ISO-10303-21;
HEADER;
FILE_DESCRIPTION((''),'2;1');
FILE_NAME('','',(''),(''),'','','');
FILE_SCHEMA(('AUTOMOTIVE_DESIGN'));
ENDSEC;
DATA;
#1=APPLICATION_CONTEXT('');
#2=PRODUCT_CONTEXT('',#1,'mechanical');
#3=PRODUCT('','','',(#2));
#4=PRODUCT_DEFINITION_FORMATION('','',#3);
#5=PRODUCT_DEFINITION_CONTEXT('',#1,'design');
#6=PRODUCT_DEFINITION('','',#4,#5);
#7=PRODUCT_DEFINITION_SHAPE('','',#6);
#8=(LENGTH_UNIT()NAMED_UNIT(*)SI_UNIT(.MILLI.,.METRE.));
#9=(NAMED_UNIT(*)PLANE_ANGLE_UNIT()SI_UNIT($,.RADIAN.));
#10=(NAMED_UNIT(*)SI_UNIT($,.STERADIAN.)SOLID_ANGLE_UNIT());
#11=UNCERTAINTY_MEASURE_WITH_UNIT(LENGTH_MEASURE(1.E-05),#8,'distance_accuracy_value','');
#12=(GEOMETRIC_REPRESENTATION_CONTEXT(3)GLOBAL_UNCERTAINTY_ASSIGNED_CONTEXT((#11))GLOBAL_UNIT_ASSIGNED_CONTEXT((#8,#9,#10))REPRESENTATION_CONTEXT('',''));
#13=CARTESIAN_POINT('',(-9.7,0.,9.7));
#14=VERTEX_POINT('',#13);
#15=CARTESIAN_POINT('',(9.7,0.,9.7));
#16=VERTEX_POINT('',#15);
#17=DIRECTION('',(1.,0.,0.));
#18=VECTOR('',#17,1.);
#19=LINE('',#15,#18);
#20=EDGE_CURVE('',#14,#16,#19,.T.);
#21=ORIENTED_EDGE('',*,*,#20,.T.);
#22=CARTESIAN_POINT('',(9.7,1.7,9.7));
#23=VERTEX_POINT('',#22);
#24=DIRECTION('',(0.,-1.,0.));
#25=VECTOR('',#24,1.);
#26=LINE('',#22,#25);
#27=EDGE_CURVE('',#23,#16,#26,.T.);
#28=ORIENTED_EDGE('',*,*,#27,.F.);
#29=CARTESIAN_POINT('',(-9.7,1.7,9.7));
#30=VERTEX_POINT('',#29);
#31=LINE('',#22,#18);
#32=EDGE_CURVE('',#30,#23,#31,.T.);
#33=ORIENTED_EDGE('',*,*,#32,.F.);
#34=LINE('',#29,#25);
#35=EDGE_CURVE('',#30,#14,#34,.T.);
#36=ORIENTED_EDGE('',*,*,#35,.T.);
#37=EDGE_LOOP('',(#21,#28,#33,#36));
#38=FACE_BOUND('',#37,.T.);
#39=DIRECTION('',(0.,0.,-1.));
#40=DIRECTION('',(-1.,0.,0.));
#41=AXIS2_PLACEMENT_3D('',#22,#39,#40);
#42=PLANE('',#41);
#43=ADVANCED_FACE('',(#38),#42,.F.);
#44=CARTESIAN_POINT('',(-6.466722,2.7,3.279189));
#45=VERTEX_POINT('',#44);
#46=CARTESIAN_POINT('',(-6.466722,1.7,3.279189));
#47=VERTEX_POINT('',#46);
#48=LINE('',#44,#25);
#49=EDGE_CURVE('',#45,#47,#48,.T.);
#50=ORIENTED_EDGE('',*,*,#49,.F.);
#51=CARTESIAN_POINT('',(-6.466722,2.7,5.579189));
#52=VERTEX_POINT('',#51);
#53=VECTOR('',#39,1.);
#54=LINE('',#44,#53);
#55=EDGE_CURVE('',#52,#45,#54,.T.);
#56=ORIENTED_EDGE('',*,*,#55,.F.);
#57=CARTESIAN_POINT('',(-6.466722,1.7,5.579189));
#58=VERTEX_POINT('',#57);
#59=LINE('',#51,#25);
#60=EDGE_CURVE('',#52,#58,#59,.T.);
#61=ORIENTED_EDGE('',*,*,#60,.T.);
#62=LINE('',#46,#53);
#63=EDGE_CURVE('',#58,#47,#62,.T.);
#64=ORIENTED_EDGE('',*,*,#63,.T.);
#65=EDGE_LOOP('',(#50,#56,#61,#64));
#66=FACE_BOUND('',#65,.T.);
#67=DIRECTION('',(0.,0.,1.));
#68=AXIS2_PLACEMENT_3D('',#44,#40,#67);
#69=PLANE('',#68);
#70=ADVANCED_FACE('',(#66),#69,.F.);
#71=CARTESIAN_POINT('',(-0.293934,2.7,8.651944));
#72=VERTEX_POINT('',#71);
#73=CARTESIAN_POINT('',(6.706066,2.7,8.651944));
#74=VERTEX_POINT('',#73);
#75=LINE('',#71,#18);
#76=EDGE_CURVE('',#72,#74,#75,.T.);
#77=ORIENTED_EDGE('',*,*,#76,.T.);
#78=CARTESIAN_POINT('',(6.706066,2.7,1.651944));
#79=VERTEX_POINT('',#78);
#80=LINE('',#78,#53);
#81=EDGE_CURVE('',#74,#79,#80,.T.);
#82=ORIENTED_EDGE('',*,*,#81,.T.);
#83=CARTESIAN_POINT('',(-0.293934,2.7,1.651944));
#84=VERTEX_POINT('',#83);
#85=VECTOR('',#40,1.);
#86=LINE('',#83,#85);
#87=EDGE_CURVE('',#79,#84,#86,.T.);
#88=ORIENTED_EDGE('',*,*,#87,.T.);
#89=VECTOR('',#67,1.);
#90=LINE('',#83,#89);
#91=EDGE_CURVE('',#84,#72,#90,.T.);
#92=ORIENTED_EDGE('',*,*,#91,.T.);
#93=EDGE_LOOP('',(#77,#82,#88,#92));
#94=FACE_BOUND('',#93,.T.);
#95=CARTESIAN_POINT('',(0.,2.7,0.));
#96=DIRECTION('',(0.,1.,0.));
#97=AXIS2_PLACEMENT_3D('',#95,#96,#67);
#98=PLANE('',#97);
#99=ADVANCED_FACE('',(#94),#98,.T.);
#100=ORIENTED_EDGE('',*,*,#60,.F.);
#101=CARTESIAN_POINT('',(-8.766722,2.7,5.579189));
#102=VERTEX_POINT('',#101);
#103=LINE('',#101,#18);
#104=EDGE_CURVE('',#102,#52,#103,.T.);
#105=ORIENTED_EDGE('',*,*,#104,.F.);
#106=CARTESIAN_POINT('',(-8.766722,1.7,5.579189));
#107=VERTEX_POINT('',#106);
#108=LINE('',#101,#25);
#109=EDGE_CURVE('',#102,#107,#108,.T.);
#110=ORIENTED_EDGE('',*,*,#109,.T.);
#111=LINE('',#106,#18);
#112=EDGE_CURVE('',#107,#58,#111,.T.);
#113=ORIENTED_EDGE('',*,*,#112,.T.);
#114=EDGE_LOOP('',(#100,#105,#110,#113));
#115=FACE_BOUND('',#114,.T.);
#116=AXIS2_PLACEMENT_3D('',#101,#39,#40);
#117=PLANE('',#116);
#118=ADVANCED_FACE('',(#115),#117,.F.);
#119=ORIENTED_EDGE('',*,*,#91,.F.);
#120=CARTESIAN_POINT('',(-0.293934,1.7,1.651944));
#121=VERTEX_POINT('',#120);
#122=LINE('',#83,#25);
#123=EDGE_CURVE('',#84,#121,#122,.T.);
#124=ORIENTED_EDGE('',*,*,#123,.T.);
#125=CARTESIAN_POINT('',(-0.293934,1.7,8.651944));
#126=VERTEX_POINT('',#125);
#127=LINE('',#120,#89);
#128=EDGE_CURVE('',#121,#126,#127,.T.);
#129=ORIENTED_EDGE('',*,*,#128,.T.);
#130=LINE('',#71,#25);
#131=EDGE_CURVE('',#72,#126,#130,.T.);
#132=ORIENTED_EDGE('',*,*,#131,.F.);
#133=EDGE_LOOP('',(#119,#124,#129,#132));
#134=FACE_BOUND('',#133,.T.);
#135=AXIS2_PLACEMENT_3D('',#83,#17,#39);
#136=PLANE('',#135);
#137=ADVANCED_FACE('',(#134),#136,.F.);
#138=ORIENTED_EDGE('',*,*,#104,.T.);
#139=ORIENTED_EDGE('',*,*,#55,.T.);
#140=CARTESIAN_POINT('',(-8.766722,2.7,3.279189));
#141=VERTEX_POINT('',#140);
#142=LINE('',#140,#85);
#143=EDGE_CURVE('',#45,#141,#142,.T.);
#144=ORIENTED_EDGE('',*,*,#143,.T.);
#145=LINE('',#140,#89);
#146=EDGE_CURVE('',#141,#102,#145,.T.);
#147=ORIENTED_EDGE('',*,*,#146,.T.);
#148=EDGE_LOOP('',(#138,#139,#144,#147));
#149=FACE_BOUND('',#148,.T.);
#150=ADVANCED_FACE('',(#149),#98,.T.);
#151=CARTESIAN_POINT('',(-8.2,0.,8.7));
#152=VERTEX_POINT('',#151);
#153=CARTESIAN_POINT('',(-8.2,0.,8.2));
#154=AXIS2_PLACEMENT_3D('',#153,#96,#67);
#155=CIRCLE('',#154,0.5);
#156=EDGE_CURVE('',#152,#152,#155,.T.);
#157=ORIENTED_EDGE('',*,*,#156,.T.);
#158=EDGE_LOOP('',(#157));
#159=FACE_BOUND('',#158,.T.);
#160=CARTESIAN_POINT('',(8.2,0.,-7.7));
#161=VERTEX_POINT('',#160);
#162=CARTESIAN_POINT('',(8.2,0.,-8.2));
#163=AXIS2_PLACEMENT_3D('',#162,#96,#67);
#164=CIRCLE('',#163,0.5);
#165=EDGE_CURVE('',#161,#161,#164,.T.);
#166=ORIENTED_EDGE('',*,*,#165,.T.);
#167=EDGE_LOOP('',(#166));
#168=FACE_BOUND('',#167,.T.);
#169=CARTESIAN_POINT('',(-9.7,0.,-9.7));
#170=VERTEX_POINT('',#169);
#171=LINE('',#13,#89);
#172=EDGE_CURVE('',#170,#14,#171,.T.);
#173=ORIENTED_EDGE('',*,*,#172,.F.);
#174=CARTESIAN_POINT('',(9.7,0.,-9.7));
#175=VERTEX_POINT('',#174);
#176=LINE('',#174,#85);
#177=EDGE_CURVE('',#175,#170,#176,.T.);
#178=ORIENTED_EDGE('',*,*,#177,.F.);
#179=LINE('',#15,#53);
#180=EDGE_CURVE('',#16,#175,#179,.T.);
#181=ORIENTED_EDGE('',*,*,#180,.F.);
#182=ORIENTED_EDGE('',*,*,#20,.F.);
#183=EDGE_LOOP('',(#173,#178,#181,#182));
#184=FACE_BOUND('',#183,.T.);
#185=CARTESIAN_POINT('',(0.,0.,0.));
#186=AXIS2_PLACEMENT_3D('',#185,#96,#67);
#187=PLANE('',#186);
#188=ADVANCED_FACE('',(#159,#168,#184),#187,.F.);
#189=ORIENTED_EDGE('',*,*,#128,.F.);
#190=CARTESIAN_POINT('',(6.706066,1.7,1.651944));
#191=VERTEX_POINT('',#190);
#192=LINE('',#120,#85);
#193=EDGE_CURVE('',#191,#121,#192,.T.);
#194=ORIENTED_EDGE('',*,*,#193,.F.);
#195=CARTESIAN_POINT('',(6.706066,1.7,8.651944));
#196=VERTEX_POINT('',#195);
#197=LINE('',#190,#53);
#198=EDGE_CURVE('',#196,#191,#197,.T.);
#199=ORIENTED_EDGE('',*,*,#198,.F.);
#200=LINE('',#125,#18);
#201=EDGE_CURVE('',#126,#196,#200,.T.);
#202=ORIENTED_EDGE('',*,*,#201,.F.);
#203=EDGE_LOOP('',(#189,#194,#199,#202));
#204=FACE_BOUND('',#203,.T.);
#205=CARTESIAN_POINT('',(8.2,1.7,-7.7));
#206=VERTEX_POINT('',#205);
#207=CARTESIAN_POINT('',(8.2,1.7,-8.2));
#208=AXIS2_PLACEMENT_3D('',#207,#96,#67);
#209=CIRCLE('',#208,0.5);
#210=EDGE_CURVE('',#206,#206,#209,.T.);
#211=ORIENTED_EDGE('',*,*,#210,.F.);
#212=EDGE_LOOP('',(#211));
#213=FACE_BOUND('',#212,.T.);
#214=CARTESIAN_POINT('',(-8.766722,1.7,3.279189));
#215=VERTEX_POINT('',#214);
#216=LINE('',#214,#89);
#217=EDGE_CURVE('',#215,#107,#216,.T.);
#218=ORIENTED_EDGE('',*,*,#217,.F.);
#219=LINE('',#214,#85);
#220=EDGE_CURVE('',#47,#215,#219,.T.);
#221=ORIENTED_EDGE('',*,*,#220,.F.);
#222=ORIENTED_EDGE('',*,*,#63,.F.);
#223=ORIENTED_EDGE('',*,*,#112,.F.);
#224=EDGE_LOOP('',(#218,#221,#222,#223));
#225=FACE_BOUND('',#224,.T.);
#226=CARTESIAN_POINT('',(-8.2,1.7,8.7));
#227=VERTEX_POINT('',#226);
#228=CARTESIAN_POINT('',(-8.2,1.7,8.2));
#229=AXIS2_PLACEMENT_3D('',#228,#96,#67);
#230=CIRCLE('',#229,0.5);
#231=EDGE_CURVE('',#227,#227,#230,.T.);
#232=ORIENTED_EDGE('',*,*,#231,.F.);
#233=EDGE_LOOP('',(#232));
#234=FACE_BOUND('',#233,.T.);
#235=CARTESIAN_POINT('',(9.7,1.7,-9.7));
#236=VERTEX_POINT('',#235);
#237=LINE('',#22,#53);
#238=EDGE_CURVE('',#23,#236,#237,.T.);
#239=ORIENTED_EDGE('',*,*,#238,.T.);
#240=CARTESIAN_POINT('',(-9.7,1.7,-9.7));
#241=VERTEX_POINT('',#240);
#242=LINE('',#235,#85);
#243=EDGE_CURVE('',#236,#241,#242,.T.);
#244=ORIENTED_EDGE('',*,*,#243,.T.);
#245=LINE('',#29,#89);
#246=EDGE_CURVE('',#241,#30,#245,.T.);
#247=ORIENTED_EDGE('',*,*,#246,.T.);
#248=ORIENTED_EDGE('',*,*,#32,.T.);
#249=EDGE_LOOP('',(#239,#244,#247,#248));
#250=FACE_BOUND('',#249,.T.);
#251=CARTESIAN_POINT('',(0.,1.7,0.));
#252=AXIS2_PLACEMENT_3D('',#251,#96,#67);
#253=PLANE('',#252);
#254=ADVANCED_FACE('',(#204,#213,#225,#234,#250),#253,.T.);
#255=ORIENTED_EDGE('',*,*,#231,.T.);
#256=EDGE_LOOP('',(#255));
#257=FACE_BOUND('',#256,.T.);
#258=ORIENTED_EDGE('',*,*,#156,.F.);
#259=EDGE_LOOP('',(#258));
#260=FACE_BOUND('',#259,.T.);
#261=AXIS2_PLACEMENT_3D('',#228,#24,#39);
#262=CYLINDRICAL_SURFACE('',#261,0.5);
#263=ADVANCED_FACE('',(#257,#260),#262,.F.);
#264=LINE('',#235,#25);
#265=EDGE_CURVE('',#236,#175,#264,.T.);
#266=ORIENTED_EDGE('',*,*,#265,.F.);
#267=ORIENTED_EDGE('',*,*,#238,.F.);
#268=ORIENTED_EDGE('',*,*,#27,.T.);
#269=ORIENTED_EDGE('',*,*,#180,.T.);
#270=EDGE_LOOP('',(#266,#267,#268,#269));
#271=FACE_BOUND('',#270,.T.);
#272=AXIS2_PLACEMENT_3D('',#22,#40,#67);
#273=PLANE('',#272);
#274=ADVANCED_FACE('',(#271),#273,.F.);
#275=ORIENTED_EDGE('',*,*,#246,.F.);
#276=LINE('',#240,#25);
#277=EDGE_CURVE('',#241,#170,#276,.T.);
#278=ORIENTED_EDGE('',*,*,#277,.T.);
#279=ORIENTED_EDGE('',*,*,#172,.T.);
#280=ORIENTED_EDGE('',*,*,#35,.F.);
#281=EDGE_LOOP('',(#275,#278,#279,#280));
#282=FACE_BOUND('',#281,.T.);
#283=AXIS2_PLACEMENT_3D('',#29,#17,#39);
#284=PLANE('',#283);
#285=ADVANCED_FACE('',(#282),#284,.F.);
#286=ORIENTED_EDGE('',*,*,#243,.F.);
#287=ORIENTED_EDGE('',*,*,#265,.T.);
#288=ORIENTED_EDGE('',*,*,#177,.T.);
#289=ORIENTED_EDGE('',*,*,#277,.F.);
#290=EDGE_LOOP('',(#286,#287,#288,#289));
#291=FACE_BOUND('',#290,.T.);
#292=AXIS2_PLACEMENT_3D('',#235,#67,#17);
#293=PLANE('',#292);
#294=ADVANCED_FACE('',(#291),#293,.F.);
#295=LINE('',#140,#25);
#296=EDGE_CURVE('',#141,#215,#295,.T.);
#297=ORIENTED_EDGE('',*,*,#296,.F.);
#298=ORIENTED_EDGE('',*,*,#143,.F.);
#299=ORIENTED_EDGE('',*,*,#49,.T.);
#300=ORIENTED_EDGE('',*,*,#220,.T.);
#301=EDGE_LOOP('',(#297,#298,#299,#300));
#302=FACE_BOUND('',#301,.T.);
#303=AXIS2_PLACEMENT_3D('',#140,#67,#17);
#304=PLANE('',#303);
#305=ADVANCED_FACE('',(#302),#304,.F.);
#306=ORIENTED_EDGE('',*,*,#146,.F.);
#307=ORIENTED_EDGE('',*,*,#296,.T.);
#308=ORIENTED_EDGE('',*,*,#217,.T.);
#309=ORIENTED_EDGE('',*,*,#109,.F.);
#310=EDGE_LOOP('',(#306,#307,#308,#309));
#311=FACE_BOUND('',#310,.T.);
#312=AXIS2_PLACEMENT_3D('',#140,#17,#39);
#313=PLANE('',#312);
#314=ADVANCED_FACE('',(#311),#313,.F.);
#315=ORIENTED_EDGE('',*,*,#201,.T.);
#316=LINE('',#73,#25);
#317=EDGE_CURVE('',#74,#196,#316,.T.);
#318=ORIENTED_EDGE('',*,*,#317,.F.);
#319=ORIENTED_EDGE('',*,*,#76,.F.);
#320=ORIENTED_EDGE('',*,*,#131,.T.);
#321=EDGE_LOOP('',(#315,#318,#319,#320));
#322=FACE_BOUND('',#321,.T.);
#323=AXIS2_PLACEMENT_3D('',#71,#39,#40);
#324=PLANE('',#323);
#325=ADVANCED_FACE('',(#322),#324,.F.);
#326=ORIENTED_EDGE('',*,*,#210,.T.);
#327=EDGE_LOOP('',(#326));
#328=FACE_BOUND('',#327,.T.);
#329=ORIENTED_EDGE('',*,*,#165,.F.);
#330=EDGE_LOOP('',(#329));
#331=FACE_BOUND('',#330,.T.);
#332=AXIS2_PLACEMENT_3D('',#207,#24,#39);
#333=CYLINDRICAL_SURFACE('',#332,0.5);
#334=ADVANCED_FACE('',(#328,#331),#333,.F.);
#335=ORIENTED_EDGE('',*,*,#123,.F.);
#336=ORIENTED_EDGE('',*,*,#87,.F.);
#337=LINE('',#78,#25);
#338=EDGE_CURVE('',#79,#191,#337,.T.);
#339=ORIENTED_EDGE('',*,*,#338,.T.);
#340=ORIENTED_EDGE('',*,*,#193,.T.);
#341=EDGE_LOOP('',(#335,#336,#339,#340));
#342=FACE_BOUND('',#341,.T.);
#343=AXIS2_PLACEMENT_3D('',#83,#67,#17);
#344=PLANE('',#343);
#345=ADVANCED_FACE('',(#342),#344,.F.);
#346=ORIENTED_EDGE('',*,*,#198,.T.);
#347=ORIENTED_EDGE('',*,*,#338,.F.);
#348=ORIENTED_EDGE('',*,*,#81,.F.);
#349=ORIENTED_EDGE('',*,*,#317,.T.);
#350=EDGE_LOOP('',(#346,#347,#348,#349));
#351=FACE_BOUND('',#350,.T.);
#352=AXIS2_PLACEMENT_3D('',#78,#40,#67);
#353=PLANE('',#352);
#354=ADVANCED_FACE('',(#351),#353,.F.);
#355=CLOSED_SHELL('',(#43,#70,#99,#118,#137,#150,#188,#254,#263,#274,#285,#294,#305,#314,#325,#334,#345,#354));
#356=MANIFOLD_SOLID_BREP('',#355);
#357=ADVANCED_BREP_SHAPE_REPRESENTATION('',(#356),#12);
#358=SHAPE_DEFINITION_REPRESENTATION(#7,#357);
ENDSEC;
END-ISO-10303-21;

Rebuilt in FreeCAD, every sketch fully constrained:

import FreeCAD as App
import Part
import Sketcher

V = App.Vector
Q = App.Units.Quantity


def add_polygon(sketch, points):
    """Adds a closed chain of lines whose ends are joined by coincident constraints."""
    first, n = sketch.GeometryCount, len(points)
    for a, b in zip(points, points[1:] + points[:1]):
        sketch.addGeometry(Part.LineSegment(App.Vector(*a, 0), App.Vector(*b, 0)), False)
    for i in range(n):
        sketch.addConstraint(Sketcher.Constraint("Coincident", first + i, 2, first + (i + 1) % n, 1))

doc = App.newDocument("Part")
params = doc.addObject("Spreadsheet::Sheet", "Params")
for row, (alias, value) in enumerate([
    ("sketch1_diameter", "1 mm"),
    ("sketch1_width", "19.4 mm"),
    ("pad1_length", "1.7 mm"),
    ("sketch2_width", "7 mm"),
    ("sketch2_width2", "2.3 mm"),
    ("pad2_length", "1 mm"),
], start=1):
    params.set(f"A{row}", alias)
    params.set(f"B{row}", "=" + value)
    params.setAlias(f"B{row}", alias)

body = doc.addObject("PartDesign::Body", "Body")

sketch1 = body.newObject("Sketcher::SketchObject", "Sketch")
sketch1.AttachmentSupport = (doc.getObject("XZ_Plane"), [""])
sketch1.MapMode = "FlatFace"
add_polygon(sketch1, [(-9.7, -9.7), (-9.7, 9.7), (9.7, 9.7), (9.7, -9.7)])
sketch1.addGeometry(Part.Circle(V(-8.2, 8.2, 0), V(0, 0, 1), 0.5), False)
sketch1.addGeometry(Part.Circle(V(8.2, -8.2, 0), V(0, 0, 1), 0.5), False)
sketch1.addConstraint([
    Sketcher.Constraint("Vertical", 0),
    Sketcher.Constraint("Horizontal", 1),
    Sketcher.Constraint("Vertical", 2),
    Sketcher.Constraint("Horizontal", 3),
    Sketcher.Constraint("Equal", 4, 5),
    Sketcher.Constraint("Symmetric", 4, 3, 5, 3, -1, 1),
    Sketcher.Constraint("Symmetric", 0, 2, 2, 2, -1, 1),
    Sketcher.Constraint("Equal", 3, 0),
    Sketcher.Constraint("Diameter", 4, Q("1 mm")),
    Sketcher.Constraint("DistanceX", 1, 1, 1, 2, Q("19.4 mm")),
    Sketcher.Constraint("DistanceX", 4, 3, -1, 1, Q("8.2 mm")),
    Sketcher.Constraint("DistanceY", -1, 1, 4, 3, Q("8.2 mm")),
])
sketch1.setExpression("Constraints[12]", "Params.sketch1_diameter")
sketch1.setExpression("Constraints[13]", "Params.sketch1_width")
pad1 = body.newObject("PartDesign::Pad", "Pad")
pad1.Profile = sketch1
pad1.setExpression("Length", "Params.pad1_length")
pad1.Reversed = True

sketch2 = body.newObject("Sketcher::SketchObject", "Sketch001")
sketch2.AttachmentSupport = (doc.getObject("XZ_Plane"), [""])
sketch2.MapMode = "FlatFace"
sketch2.AttachmentOffset = App.Placement(V(0, 0, -1.7), App.Rotation())
add_polygon(sketch2, [(-0.3, 1.7), (-0.3, 8.7), (6.7, 8.7), (6.7, 1.7)])
add_polygon(sketch2, [(-8.8, 3.3), (-8.8, 5.6), (-6.5, 5.6), (-6.5, 3.3)])
sketch2.addConstraint([
    Sketcher.Constraint("Vertical", 0),
    Sketcher.Constraint("Horizontal", 1),
    Sketcher.Constraint("Vertical", 2),
    Sketcher.Constraint("Horizontal", 3),
    Sketcher.Constraint("Vertical", 4),
    Sketcher.Constraint("Horizontal", 5),
    Sketcher.Constraint("Vertical", 6),
    Sketcher.Constraint("Horizontal", 7),
    Sketcher.Constraint("Equal", 3, 0),
    Sketcher.Constraint("Equal", 7, 4),
    Sketcher.Constraint("DistanceX", 1, 1, 1, 2, Q("7 mm")),
    Sketcher.Constraint("DistanceX", 5, 1, 5, 2, Q("2.3 mm")),
    Sketcher.Constraint("DistanceY", -1, 1, 4, 2, Q("5.579189 mm")),
    Sketcher.Constraint("DistanceX", 4, 2, 0, 2, Q("8.472788 mm")),
    Sketcher.Constraint("DistanceX", 0, 2, -1, 1, Q("0.293934 mm")),
    Sketcher.Constraint("DistanceY", -1, 1, 0, 2, Q("8.651944 mm")),
])
sketch2.setExpression("Constraints[18]", "Params.sketch2_width")
sketch2.setExpression("Constraints[19]", "Params.sketch2_width2")
pad2 = body.newObject("PartDesign::Pad", "Pad001")
pad2.Profile = sketch2
pad2.setExpression("Length", "Params.pad2_length")
pad2.Reversed = True

doc.recompute()
